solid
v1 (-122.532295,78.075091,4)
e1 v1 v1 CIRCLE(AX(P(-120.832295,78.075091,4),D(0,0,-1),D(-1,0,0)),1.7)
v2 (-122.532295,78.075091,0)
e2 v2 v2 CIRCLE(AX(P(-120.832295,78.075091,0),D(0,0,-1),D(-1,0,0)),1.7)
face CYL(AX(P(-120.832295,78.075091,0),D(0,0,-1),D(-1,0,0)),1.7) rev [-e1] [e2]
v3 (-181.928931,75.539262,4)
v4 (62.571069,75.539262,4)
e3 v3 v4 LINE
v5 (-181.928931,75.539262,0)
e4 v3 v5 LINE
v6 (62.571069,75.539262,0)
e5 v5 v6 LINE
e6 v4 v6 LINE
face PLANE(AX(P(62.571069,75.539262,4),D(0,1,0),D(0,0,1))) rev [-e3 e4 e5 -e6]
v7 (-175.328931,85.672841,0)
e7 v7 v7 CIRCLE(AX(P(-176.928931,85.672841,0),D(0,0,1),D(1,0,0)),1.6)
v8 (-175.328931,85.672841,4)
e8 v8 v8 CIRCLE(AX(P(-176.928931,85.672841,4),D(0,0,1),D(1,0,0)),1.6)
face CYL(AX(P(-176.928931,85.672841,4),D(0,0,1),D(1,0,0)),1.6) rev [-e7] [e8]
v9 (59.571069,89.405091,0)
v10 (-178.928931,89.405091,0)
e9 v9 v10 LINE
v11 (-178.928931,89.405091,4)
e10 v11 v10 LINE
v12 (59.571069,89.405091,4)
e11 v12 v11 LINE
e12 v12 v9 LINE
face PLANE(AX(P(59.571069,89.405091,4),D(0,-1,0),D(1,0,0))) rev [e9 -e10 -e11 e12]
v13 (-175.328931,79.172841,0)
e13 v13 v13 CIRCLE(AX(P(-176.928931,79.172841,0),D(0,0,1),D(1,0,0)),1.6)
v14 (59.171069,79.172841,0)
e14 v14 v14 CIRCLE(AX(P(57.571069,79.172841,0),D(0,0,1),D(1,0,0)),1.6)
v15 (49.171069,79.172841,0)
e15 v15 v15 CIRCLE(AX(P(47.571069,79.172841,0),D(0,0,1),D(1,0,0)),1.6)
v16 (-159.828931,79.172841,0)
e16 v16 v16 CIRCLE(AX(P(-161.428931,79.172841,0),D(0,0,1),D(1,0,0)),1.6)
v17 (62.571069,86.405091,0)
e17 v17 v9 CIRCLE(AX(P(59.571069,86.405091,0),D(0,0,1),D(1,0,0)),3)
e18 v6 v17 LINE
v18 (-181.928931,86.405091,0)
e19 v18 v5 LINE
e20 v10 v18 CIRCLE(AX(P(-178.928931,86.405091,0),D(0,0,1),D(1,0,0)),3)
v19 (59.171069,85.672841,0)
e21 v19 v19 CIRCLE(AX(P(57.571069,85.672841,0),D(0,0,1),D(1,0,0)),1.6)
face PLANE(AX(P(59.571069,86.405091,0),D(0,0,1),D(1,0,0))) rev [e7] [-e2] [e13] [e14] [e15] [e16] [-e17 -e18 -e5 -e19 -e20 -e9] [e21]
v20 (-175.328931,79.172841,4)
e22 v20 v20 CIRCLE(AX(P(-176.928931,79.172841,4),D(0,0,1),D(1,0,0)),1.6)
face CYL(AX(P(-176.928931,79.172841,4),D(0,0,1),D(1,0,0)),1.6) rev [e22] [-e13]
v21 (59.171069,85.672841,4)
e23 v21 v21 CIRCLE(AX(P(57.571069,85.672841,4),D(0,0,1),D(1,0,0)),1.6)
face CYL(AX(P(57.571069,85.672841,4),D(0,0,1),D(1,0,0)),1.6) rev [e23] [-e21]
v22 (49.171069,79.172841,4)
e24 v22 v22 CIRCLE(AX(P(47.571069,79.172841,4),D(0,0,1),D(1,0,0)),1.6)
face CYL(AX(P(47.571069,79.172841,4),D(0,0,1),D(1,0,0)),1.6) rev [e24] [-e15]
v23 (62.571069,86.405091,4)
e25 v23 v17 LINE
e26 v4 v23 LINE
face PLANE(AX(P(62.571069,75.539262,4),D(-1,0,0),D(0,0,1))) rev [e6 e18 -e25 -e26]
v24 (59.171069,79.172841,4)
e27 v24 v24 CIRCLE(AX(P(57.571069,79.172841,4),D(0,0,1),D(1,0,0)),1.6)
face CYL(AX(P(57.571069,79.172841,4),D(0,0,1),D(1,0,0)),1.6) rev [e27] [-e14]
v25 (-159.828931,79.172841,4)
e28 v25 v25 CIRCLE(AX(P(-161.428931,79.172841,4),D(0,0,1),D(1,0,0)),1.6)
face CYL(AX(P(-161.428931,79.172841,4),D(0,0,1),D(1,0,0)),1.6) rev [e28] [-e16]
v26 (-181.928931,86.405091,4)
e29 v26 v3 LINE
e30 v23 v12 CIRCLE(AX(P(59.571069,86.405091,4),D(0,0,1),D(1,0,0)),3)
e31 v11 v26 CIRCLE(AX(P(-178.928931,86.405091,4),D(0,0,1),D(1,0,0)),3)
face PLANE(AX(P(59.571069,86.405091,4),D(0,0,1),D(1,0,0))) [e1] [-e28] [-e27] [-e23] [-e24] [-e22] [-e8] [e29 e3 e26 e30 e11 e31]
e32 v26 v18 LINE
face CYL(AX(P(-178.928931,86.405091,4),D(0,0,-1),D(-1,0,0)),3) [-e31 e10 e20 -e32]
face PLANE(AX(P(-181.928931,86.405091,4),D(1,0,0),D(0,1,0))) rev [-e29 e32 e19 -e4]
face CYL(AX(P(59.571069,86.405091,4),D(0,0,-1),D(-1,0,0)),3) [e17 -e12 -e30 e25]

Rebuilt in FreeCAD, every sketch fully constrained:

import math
import FreeCAD as App
import Part
import Sketcher
from FreeCAD import Vector
Q = App.Units.Quantity

doc = App.newDocument("Part")
params = doc.addObject("Spreadsheet::Sheet", "Params")
for row, (alias, value) in enumerate([
    ("sketch1_radius", "3 mm"),
    ("sketch1_width", "238.5 mm"),
    ("pad1_length", "4 mm"),
    ("sketch2_diameter", "3.2 mm"),
    ("hole_diameter", "3.2 mm"),
    ("sketch3_diameter", "3.4 mm"),
    ("hole2_diameter", "3.4 mm"),
], start=1):
    params.set(f"A{row}", alias)
    params.set(f"B{row}", "=" + value)
    params.setAlias(f"B{row}", alias)

body = doc.addObject("PartDesign::Body", "Body")

# Sketch on XY plane
sketch1 = body.newObject("Sketcher::SketchObject", "Sketch")
sketch1.AttachmentSupport = (doc.getObject("XY_Plane"), [""])
sketch1.MapMode = "FlatFace"
sketch1.addGeometry(Part.LineSegment(Vector(59.6, 89.4, 0), Vector(-178.9, 89.4, 0)), False)
sketch1.addGeometry(Part.ArcOfCircle(Part.Circle(Vector(-178.9, 86.4, 0), Vector(0, 0, 1), 3), math.radians(90), math.radians(180)), False)
sketch1.addGeometry(Part.LineSegment(Vector(-181.9, 86.4, 0), Vector(-181.9, 75.5, 0)), False)
sketch1.addGeometry(Part.LineSegment(Vector(-181.9, 75.5, 0), Vector(62.6, 75.5, 0)), False)
sketch1.addGeometry(Part.LineSegment(Vector(62.6, 75.5, 0), Vector(62.6, 86.4, 0)), False)
sketch1.addGeometry(Part.ArcOfCircle(Part.Circle(Vector(59.6, 86.4, 0), Vector(0, 0, 1), 3), math.radians(0), math.radians(90)), False)
sketch1.addConstraint(Sketcher.Constraint("Tangent", 0, 2, 1, 1))
sketch1.addConstraint(Sketcher.Constraint("Tangent", 1, 2, 2, 1))
sketch1.addConstraint(Sketcher.Constraint("Coincident", 2, 2, 3, 1))
sketch1.addConstraint(Sketcher.Constraint("Coincident", 3, 2, 4, 1))
sketch1.addConstraint(Sketcher.Constraint("Tangent", 4, 2, 5, 1))
sketch1.addConstraint(Sketcher.Constraint("Tangent", 5, 2, 0, 1))
sketch1.addConstraint(Sketcher.Constraint("Horizontal", 0))
sketch1.addConstraint(Sketcher.Constraint("Vertical", 2))
sketch1.addConstraint(Sketcher.Constraint("Horizontal", 3))
sketch1.addConstraint(Sketcher.Constraint("Vertical", 4))
sketch1.addConstraint(Sketcher.Constraint("Equal", 1, 5))
sketch1.addConstraint(Sketcher.Constraint("Radius", 1, Q("3 mm")))
sketch1.addConstraint(Sketcher.Constraint("DistanceX", 0, 2, 0, 1, Q("238.5 mm")))
sketch1.addConstraint(Sketcher.Constraint("DistanceY", 2, 2, 2, 1, Q("10.86583 mm")))
sketch1.addConstraint(Sketcher.Constraint("DistanceX", 1, 3, -1, 1, Q("178.928931 mm")))
sketch1.addConstraint(Sketcher.Constraint("DistanceY", -1, 1, 1, 3, Q("86.405091 mm")))
sketch1.setExpression("Constraints[11]", "Params.sketch1_radius")
sketch1.setExpression("Constraints[12]", "Params.sketch1_width")
pad1 = body.newObject("PartDesign::Pad", "Pad")
pad1.Profile = sketch1
pad1.setExpression("Length", "Params.pad1_length")

# Sketch on XY plane
sketch2 = body.newObject("Sketcher::SketchObject", "Sketch001")
sketch2.AttachmentSupport = (doc.getObject("XY_Plane"), [""])
sketch2.MapMode = "FlatFace"
sketch2.AttachmentOffset = App.Placement(Vector(0, 0, 4), App.Rotation())
sketch2.addGeometry(Part.Circle(Vector(-176.9, 85.7, 0), Vector(0, 0, 1), 1.6), False)
sketch2.addGeometry(Part.Circle(Vector(-176.9, 79.2, 0), Vector(0, 0, 1), 1.6), False)
sketch2.addGeometry(Part.Circle(Vector(-161.4, 79.2, 0), Vector(0, 0, 1), 1.6), False)
sketch2.addGeometry(Part.Circle(Vector(47.6, 79.2, 0), Vector(0, 0, 1), 1.6), False)
sketch2.addGeometry(Part.Circle(Vector(57.6, 79.2, 0), Vector(0, 0, 1), 1.6), False)
sketch2.addGeometry(Part.Circle(Vector(57.6, 85.7, 0), Vector(0, 0, 1), 1.6), False)
sketch2.addConstraint(Sketcher.Constraint("Equal", 0, 1))
sketch2.addConstraint(Sketcher.Constraint("Equal", 1, 2))
sketch2.addConstraint(Sketcher.Constraint("Equal", 2, 3))
sketch2.addConstraint(Sketcher.Constraint("Equal", 3, 4))
sketch2.addConstraint(Sketcher.Constraint("Equal", 4, 5))
sketch2.addConstraint(Sketcher.Constraint("Horizontal", 1, 3, 2, 3))
sketch2.addConstraint(Sketcher.Constraint("Horizontal", 2, 3, 3, 3))
sketch2.addConstraint(Sketcher.Constraint("Horizontal", 3, 3, 4, 3))
sketch2.addConstraint(Sketcher.Constraint("Horizontal", 0, 3, 5, 3))
sketch2.addConstraint(Sketcher.Constraint("Vertical", 0, 3, 1, 3))
sketch2.addConstraint(Sketcher.Constraint("Vertical", 4, 3, 5, 3))
sketch2.addConstraint(Sketcher.Constraint("Diameter", 0, Q("3.2 mm")))
sketch2.addConstraint(Sketcher.Constraint("DistanceX", 2, 3, 3, 3, Q("209 mm")))
sketch2.addConstraint(Sketcher.Constraint("DistanceX", 3, 3, 4, 3, Q("10 mm")))
sketch2.addConstraint(Sketcher.Constraint("DistanceY", 1, 3, 0, 3, Q("6.5 mm")))
sketch2.addConstraint(Sketcher.Constraint("DistanceX", 1, 3, 2, 3, Q("15.5 mm")))
sketch2.addConstraint(Sketcher.Constraint("DistanceX", 0, 3, -1, 1, Q("176.928931 mm")))
sketch2.addConstraint(Sketcher.Constraint("DistanceY", -1, 1, 0, 3, Q("85.672841 mm")))
sketch2.setExpression("Constraints[11]", "Params.sketch2_diameter")
doc.recompute()
hole = body.newObject("PartDesign::Hole", "Hole")
hole.Profile = sketch2
hole.ThreadType = "None"
hole.setExpression("Diameter", "Params.hole_diameter")
hole.DepthType = "ThroughAll"

# Sketch on XY plane
sketch3 = body.newObject("Sketcher::SketchObject", "Sketch002")
sketch3.AttachmentSupport = (doc.getObject("XY_Plane"), [""])
sketch3.MapMode = "FlatFace"
sketch3.addGeometry(Part.Circle(Vector(-120.8, 78.1, 0), Vector(0, 0, 1), 1.7), False)
sketch3.addConstraint(Sketcher.Constraint("Diameter", 0, Q("3.4 mm")))
sketch3.addConstraint(Sketcher.Constraint("DistanceY", -1, 1, 0, 3, Q("78.075091 mm")))
sketch3.addConstraint(Sketcher.Constraint("DistanceX", 0, 3, -1, 1, Q("120.832295 mm")))
sketch3.setExpression("Constraints[0]", "Params.sketch3_diameter")
doc.recompute()
hole2 = body.newObject("PartDesign::Hole", "Hole001")
hole2.Profile = sketch3
hole2.ThreadType = "None"
hole2.setExpression("Diameter", "Params.hole2_diameter")
hole2.DepthType = "ThroughAll"
hole2.Reversed = True

doc.recompute()
